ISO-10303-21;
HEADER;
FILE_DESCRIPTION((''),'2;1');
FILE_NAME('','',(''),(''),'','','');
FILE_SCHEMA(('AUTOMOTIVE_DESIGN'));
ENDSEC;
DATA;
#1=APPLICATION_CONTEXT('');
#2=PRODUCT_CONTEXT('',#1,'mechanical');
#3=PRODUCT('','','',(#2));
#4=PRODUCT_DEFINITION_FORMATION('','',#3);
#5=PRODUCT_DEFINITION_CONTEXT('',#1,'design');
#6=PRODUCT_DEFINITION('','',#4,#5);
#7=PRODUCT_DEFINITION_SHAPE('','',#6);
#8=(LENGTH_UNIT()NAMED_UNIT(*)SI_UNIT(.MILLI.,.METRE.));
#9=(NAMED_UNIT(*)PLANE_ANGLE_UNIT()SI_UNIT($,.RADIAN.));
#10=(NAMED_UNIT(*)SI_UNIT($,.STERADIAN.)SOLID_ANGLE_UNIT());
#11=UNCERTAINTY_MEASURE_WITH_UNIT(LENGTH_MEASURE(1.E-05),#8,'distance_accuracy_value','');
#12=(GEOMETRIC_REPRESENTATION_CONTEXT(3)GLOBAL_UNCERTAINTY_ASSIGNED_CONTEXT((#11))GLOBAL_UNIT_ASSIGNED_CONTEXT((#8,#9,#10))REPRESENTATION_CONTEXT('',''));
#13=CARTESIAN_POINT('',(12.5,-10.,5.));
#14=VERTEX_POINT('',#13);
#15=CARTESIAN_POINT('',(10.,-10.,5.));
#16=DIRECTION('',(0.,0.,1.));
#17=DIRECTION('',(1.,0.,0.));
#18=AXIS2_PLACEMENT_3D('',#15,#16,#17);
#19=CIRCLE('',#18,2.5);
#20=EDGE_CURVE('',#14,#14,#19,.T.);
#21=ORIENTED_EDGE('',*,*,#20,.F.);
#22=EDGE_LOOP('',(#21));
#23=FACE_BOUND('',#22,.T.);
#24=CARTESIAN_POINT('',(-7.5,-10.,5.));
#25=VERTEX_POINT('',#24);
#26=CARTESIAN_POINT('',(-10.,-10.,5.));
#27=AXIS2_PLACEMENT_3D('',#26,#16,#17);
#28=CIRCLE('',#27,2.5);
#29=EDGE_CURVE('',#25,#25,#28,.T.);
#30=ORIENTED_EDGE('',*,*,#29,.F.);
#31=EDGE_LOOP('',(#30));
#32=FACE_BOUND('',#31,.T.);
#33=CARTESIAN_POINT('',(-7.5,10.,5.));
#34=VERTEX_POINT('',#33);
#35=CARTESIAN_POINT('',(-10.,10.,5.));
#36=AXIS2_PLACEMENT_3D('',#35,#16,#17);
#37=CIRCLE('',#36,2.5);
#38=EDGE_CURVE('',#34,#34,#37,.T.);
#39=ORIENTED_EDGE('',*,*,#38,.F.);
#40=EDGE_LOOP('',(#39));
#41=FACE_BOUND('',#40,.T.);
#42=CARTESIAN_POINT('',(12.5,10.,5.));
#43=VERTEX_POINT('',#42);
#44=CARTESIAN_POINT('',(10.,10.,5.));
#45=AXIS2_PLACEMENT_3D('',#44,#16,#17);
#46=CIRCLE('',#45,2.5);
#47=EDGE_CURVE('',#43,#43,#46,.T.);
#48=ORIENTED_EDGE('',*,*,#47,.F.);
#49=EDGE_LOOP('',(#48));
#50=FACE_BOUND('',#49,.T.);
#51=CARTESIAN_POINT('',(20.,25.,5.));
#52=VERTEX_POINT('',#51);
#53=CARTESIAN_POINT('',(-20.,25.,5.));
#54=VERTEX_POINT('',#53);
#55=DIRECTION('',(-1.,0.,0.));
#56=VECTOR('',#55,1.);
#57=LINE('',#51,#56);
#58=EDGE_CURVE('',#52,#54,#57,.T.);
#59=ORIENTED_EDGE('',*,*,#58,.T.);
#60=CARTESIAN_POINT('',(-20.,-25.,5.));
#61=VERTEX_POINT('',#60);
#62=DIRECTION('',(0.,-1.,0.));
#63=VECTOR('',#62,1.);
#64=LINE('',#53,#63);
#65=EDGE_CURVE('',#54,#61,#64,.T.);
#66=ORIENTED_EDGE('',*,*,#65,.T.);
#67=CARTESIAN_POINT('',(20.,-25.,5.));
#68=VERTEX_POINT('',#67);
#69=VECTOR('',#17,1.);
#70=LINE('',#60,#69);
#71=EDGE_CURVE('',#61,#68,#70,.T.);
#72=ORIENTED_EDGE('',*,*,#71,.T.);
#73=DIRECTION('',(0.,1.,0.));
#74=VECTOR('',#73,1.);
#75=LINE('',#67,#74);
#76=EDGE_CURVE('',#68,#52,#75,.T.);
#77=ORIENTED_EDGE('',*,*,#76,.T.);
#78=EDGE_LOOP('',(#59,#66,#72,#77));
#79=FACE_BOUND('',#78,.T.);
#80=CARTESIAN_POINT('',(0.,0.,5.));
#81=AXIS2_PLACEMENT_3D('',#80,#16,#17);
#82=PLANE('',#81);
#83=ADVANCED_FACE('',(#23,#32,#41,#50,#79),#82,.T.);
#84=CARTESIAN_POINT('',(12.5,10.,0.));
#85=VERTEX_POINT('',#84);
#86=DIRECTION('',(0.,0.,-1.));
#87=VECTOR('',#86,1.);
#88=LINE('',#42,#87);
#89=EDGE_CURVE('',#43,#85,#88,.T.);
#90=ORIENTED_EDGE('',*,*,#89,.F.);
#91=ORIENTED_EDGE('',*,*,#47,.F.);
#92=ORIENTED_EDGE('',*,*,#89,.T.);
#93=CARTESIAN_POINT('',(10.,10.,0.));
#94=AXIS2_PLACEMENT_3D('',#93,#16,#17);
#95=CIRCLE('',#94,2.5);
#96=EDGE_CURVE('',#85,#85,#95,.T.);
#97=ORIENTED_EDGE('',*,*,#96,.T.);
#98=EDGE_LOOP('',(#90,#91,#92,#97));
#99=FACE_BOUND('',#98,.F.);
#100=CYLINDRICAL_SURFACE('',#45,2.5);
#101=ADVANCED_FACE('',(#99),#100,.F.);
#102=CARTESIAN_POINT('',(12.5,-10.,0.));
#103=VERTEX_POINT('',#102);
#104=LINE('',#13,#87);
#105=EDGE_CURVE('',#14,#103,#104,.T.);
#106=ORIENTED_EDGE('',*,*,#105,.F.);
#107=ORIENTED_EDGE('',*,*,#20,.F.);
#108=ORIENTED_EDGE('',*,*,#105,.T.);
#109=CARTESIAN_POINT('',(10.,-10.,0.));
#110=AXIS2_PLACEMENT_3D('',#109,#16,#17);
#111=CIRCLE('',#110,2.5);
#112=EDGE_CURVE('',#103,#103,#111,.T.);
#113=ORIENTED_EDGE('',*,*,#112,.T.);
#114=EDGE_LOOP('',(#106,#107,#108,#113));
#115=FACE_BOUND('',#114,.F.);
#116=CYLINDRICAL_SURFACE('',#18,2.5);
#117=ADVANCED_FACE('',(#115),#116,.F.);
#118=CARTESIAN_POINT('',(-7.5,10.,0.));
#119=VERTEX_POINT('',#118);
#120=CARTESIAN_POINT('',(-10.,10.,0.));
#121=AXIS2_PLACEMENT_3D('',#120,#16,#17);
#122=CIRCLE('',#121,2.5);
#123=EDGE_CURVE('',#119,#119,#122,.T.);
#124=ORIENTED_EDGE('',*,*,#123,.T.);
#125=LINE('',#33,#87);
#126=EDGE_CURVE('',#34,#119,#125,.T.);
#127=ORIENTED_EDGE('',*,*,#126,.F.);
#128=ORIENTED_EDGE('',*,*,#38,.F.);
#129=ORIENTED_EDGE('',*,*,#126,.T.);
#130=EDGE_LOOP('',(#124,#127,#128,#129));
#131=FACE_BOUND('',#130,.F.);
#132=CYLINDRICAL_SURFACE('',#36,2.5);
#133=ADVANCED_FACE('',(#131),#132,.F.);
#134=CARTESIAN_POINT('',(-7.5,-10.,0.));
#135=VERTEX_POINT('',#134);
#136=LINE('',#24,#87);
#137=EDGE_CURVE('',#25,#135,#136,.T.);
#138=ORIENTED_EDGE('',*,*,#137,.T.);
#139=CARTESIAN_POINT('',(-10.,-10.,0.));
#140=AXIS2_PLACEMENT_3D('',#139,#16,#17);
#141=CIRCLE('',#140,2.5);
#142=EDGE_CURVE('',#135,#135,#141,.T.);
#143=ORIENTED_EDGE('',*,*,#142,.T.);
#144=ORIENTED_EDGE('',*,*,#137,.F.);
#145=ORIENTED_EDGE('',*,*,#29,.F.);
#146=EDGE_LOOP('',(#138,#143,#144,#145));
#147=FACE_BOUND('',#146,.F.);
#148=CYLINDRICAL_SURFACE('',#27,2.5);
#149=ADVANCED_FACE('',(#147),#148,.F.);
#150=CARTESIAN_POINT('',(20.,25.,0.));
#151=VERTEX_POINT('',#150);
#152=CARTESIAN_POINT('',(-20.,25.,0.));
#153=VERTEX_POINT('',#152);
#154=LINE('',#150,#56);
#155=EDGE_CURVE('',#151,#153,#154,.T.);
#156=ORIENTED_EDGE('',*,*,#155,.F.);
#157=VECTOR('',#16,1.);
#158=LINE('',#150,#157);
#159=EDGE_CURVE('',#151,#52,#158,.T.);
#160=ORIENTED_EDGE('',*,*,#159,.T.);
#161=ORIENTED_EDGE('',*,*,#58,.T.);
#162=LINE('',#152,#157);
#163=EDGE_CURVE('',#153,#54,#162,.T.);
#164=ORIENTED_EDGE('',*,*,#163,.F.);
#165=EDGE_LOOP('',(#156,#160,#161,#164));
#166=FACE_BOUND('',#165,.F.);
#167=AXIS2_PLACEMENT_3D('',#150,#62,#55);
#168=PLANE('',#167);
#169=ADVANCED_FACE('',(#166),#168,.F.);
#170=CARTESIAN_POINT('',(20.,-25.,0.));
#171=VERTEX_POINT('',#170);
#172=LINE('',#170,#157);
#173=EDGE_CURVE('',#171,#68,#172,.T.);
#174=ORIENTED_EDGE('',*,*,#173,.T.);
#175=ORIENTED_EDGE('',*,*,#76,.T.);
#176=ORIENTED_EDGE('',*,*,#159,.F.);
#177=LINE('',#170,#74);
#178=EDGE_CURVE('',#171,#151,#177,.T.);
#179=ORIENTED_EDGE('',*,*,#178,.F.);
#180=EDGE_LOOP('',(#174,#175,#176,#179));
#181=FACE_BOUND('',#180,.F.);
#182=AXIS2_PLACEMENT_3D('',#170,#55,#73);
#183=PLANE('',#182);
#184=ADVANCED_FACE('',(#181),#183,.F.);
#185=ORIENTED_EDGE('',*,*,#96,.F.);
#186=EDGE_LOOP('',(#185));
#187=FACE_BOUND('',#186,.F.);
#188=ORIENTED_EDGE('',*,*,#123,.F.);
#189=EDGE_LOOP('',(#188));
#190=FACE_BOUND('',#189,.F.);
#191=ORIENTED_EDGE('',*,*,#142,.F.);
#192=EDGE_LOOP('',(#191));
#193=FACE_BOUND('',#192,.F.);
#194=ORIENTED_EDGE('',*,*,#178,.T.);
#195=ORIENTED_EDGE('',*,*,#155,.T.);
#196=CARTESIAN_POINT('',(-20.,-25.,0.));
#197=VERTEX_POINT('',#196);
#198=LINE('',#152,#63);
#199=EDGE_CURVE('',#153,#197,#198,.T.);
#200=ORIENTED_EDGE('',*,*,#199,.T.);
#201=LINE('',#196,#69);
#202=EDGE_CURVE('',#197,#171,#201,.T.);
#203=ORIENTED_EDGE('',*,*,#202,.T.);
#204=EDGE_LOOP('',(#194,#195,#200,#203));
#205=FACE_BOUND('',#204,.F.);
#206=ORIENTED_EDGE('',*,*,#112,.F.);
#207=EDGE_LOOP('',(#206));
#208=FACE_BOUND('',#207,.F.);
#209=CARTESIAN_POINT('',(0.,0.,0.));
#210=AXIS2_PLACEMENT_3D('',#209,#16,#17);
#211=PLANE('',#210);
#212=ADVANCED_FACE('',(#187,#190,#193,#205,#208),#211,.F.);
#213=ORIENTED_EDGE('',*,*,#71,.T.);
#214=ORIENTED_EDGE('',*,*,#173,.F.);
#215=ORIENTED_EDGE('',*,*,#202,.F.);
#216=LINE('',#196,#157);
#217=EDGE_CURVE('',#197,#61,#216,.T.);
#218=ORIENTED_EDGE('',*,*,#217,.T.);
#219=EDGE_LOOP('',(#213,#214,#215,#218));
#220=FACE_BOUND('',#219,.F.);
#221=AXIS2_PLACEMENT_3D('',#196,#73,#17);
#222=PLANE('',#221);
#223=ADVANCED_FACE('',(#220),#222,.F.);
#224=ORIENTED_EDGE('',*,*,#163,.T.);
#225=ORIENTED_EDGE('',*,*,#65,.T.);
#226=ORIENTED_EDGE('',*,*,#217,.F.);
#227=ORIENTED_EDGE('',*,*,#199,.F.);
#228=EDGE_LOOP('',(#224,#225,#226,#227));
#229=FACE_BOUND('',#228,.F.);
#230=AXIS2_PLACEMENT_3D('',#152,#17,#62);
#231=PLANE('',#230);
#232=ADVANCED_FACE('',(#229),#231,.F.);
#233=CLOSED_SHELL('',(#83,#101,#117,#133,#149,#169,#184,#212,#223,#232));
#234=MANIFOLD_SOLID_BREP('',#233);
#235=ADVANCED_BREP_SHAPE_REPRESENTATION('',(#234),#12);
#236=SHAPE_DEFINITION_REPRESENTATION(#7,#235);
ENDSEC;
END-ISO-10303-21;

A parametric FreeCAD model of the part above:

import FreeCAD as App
import Part
import Sketcher

V = App.Vector


def add_polygon(sketch, points):
    """Adds a closed chain of lines whose ends are joined by coincident constraints."""
    first, n = sketch.GeometryCount, len(points)
    for a, b in zip(points, points[1:] + points[:1]):
        sketch.addGeometry(Part.LineSegment(App.Vector(*a, 0), App.Vector(*b, 0)), False)
    for i in range(n):
        sketch.addConstraint(Sketcher.Constraint("Coincident", first + i, 2, first + (i + 1) % n, 1))

doc = App.newDocument("Part")
body = doc.addObject("PartDesign::Body", "Body")

sketch1 = doc.addObject("Sketcher::SketchObject", "Sketch")
body.addObject(sketch1)
sketch1.AttachmentSupport = (doc.XY_Plane, [""])
sketch1.MapMode = "FlatFace"
add_polygon(sketch1, [(-20, 25), (-20, -25), (20, -25), (20, 25)])
sketch1.addConstraint([
    Sketcher.Constraint("Vertical", 0),
    Sketcher.Constraint("Horizontal", 1),
    Sketcher.Constraint("Vertical", 2),
    Sketcher.Constraint("Horizontal", 3),
    Sketcher.Constraint("Symmetric", 0, 2, 2, 2, -1, 1),
    Sketcher.Constraint("DistanceX", 1, 1, 1, 2, 40.0),
    Sketcher.Constraint("DistanceY", 0, 2, 0, 1, 50.0),
])
pad1 = doc.addObject("PartDesign::Pad", "Pad")
body.addObject(pad1)
pad1.Profile = sketch1
pad1.Length = 5

sketch2 = doc.addObject("Sketcher::SketchObject", "Sketch001")
body.addObject(sketch2)
sketch2.AttachmentSupport = (doc.XY_Plane, [""])
sketch2.MapMode = "FlatFace"
sketch2.AttachmentOffset = App.Placement(V(0, 0, 5), App.Rotation())
sketch2.addGeometry([
    Part.Circle(V(-10, 10, 0), V(0, 0, 1), 2.5),
    Part.Circle(V(-10, -10, 0), V(0, 0, 1), 2.5),
    Part.Circle(V(10, 10, 0), V(0, 0, 1), 2.5),
    Part.Circle(V(10, -10, 0), V(0, 0, 1), 2.5),
], False)
sketch2.addConstraint([
    Sketcher.Constraint("Equal", 0, 1),
    Sketcher.Constraint("Equal", 1, 2),
    Sketcher.Constraint("Equal", 2, 3),
    Sketcher.Constraint("Symmetric", 1, 3, 2, 3, -1, 1),
    Sketcher.Constraint("Symmetric", 0, 3, 3, 3, -1, 1),
    Sketcher.Constraint("Symmetric", 0, 3, 2, 3, -2),
    Sketcher.Constraint("Diameter", 0, 5.0),
    Sketcher.Constraint("DistanceX", 0, 3, -1, 1, 10.0),
    Sketcher.Constraint("DistanceY", -1, 1, 0, 3, 10.0),
])
pocket1 = doc.addObject("PartDesign::Pocket", "Pocket")
body.addObject(pocket1)
pocket1.Profile = sketch2
pocket1.Type = "ThroughAll"

doc.recompute()
